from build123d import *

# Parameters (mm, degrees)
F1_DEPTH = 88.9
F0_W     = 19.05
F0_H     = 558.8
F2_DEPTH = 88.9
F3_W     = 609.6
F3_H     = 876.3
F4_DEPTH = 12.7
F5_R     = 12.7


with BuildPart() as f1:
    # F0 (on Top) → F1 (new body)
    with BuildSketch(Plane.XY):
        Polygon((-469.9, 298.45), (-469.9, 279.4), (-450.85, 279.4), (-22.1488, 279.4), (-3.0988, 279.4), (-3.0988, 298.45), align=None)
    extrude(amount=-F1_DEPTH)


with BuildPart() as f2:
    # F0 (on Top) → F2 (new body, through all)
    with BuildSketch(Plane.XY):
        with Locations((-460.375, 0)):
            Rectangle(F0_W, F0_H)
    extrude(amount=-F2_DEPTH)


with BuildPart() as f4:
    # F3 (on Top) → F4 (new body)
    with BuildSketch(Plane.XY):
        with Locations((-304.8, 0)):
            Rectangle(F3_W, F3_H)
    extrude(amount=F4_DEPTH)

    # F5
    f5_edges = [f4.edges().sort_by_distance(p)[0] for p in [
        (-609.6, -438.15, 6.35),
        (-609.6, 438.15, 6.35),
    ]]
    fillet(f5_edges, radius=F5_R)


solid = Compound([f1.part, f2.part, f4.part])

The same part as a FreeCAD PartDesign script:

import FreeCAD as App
import Part
import Sketcher

V = App.Vector
Q = App.Units.Quantity


def edges_at(feature, points):
    """Names of the edges that pass closest to the given points."""
    edges = feature.Shape.Edges
    near = lambda p: min(range(len(edges)), key=lambda i: edges[i].distToShape(Part.Vertex(*p))[0])
    return sorted({f"Edge{near(p) + 1}" for p in points})

doc = App.newDocument("Part")
params = doc.addObject("Spreadsheet::Sheet", "Params")
for row, (alias, value) in enumerate([
    ("sketch1_height", "0.75 in"),
    ("sketch1_width", "18.378 in"),
    ("pad1_length", "3.5 in"),
    ("sketch2_height", "22 in"),
    ("sketch2_width", "0.75 in"),
    ("pad2_length", "3.5 in"),
    ("sketch3_width", "24 in"),
    ("sketch3_height", "34.5 in"),
    ("pad3_length", "0.5 in"),
    ("fillet_radius", "0.5 in"),
], start=1):
    params.set(f"A{row}", alias)
    params.set(f"B{row}", "=" + value)
    params.setAlias(f"B{row}", alias)

body = doc.addObject("PartDesign::Body", "Body")

# Sketch on XY plane
sketch1 = body.newObject("Sketcher::SketchObject", "Sketch")
sketch1.AttachmentSupport = (doc.getObject("XY_Plane"), [""])
sketch1.MapMode = "FlatFace"
sketch1.addGeometry([
    Part.LineSegment(V(-470, 298, 0), V(-470, 279, 0)),
    Part.LineSegment(V(-470, 279, 0), V(-3, 279, 0)),
    Part.LineSegment(V(-3, 279, 0), V(-3, 298, 0)),
    Part.LineSegment(V(-3, 298, 0), V(-470, 298, 0)),
], False)
sketch1.addConstraint([
    Sketcher.Constraint("Coincident", 0, 2, 1, 1),
    Sketcher.Constraint("Coincident", 1, 2, 2, 1),
    Sketcher.Constraint("Coincident", 2, 2, 3, 1),
    Sketcher.Constraint("Coincident", 3, 2, 0, 1),
    Sketcher.Constraint("Vertical", 0),
    Sketcher.Constraint("Horizontal", 1),
    Sketcher.Constraint("Vertical", 2),
    Sketcher.Constraint("Horizontal", 3),
    Sketcher.Constraint("DistanceY", -1, 1, 0, 2, Q("11 in")),
    Sketcher.Constraint("DistanceY", 0, 2, 0, 1, Q("0.75 in")),
    Sketcher.Constraint("DistanceX", 0, 2, -1, 1, Q("18.5 in")),
    Sketcher.Constraint("DistanceX", 1, 1, 1, 2, Q("18.378 in")),
])
sketch1.setExpression("Constraints[9]", "Params.sketch1_height")
sketch1.setExpression("Constraints[11]", "Params.sketch1_width")
pad1 = body.newObject("PartDesign::Pad", "Pad")
pad1.Profile = sketch1
pad1.setExpression("Length", "Params.pad1_length")
pad1.Reversed = True
body2 = doc.addObject("PartDesign::Body", "Body001")

# Sketch on XY plane
sketch2 = body2.newObject("Sketcher::SketchObject", "Sketch001")
sketch2.AttachmentSupport = (doc.getObject("XY_Plane001"), [""])
sketch2.MapMode = "FlatFace"
sketch2.addGeometry([
    Part.LineSegment(V(-470, 279, 0), V(-470, -279, 0)),
    Part.LineSegment(V(-470, -279, 0), V(-451, -279, 0)),
    Part.LineSegment(V(-451, -279, 0), V(-451, 279, 0)),
    Part.LineSegment(V(-451, 279, 0), V(-470, 279, 0)),
], False)
sketch2.addConstraint([
    Sketcher.Constraint("Coincident", 0, 2, 1, 1),
    Sketcher.Constraint("Coincident", 1, 2, 2, 1),
    Sketcher.Constraint("Coincident", 2, 2, 3, 1),
    Sketcher.Constraint("Coincident", 3, 2, 0, 1),
    Sketcher.Constraint("Vertical", 0),
    Sketcher.Constraint("Horizontal", 1),
    Sketcher.Constraint("Vertical", 2),
    Sketcher.Constraint("Horizontal", 3),
    Sketcher.Constraint("DistanceY", 0, 2, 0, 1, Q("22 in")),
    Sketcher.Constraint("DistanceY", 0, 2, -1, 1, Q("11 in")),
    Sketcher.Constraint("DistanceX", 1, 1, 1, 2, Q("0.75 in")),
    Sketcher.Constraint("DistanceX", 0, 2, -1, 1, Q("18.5 in")),
])
sketch2.setExpression("Constraints[8]", "Params.sketch2_height")
sketch2.setExpression("Constraints[10]", "Params.sketch2_width")
pad2 = body2.newObject("PartDesign::Pad", "Pad001")
pad2.Profile = sketch2
pad2.setExpression("Length", "Params.pad2_length")
pad2.Reversed = True
body3 = doc.addObject("PartDesign::Body", "Body002")

# Sketch on XY plane
sketch3 = body3.newObject("Sketcher::SketchObject", "Sketch002")
sketch3.AttachmentSupport = (doc.getObject("XY_Plane002"), [""])
sketch3.MapMode = "FlatFace"
sketch3.addGeometry([
    Part.LineSegment(V(-610, 438, 0), V(-610, -438, 0)),
    Part.LineSegment(V(-610, -438, 0), V(0, -438, 0)),
    Part.LineSegment(V(0, -438, 0), V(0, 438, 0)),
    Part.LineSegment(V(0, 438, 0), V(-610, 438, 0)),
], False)
sketch3.addConstraint([
    Sketcher.Constraint("Coincident", 0, 2, 1, 1),
    Sketcher.Constraint("Coincident", 1, 2, 2, 1),
    Sketcher.Constraint("Coincident", 2, 2, 3, 1),
    Sketcher.Constraint("Coincident", 3, 2, 0, 1),
    Sketcher.Constraint("Vertical", 0),
    Sketcher.Constraint("Horizontal", 1),
    Sketcher.Constraint("Vertical", 2),
    Sketcher.Constraint("Horizontal", 3),
    Sketcher.Constraint("Symmetric", 1, 2, 2, 2, -1, 1),
    Sketcher.Constraint("DistanceX", 1, 1, 1, 2, Q("24 in")),
    Sketcher.Constraint("DistanceY", 0, 2, 0, 1, Q("34.5 in")),
])
sketch3.setExpression("Constraints[9]", "Params.sketch3_width")
sketch3.setExpression("Constraints[10]", "Params.sketch3_height")
pad3 = body3.newObject("PartDesign::Pad", "Pad002")
pad3.Profile = sketch3
pad3.setExpression("Length", "Params.pad3_length")
doc.recompute()

fillet = body3.newObject("PartDesign::Fillet", "Fillet")
fillet.Base = (pad3, edges_at(pad3, [(-609.6, -438.15, 6.35), (-609.6, 438.15, 6.35)]))
fillet.setExpression("Radius", "Params.fillet_radius")

doc.recompute()
